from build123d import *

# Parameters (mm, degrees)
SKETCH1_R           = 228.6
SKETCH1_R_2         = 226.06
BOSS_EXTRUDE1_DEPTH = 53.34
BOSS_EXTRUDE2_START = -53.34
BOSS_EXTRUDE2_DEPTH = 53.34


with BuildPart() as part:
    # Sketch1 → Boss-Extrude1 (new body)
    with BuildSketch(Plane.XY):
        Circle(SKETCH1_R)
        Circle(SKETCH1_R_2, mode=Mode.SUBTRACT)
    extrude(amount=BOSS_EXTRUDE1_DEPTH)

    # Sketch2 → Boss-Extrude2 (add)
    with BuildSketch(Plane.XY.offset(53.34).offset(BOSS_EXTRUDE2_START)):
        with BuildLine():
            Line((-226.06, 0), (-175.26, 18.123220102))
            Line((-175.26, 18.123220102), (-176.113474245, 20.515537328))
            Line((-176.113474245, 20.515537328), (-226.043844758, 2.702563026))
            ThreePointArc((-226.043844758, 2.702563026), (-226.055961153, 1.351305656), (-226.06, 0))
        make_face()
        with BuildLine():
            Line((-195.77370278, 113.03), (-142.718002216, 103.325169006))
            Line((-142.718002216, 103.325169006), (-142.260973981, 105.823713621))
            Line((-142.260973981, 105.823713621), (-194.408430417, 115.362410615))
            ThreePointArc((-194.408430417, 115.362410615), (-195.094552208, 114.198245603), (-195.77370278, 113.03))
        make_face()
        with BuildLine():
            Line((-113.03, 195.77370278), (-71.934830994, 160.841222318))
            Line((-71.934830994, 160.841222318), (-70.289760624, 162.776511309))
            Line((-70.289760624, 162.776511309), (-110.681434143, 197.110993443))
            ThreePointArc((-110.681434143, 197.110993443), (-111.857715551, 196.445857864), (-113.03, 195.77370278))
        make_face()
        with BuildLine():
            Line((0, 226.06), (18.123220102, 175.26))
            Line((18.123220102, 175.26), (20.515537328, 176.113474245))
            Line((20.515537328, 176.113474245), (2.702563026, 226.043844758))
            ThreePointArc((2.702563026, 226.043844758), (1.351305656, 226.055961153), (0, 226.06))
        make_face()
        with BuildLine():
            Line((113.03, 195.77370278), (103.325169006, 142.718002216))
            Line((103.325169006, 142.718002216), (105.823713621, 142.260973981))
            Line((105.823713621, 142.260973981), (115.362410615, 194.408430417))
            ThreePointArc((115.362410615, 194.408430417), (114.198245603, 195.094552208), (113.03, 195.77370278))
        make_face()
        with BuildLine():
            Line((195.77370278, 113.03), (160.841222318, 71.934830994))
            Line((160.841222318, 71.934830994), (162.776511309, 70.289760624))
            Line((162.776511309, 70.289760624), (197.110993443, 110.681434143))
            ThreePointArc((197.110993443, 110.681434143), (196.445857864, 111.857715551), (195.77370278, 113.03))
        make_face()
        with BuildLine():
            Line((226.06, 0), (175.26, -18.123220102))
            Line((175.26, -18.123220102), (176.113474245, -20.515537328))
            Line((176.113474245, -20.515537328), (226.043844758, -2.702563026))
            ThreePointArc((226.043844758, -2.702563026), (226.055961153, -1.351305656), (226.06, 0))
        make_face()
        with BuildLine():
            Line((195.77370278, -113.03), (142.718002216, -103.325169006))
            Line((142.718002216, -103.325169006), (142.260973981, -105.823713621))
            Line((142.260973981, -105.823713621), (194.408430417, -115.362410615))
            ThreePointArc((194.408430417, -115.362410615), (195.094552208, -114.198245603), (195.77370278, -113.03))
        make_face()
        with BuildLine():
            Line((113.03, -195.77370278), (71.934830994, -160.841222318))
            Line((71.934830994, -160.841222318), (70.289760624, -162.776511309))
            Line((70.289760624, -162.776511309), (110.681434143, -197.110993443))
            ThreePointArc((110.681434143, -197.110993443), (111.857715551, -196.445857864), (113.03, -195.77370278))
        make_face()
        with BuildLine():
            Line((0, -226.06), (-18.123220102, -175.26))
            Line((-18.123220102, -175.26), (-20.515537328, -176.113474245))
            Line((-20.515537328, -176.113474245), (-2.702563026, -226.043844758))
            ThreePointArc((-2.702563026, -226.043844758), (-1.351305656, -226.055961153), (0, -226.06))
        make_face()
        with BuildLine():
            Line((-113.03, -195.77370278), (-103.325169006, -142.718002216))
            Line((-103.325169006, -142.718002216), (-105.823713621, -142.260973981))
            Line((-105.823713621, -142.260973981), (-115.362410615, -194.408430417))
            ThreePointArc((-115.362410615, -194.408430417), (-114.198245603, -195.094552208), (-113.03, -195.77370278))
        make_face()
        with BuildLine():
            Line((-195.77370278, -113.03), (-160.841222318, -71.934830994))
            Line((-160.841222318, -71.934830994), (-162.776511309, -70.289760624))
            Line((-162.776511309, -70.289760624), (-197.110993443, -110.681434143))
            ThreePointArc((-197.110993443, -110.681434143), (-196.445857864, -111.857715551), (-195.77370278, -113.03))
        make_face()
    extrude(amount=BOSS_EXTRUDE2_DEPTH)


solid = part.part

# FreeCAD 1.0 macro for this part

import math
import FreeCAD as App
import Part
import Sketcher
Q = App.Units.Quantity

doc = App.newDocument("Part")
body = doc.addObject("PartDesign::Body", "Body")

# Sketch on XY plane
sketch1 = body.newObject("Sketcher::SketchObject", "Sketch")
sketch1.AttachmentSupport = (doc.getObject("XY_Plane"), [""])
sketch1.MapMode = "FlatFace"
sketch1.addGeometry(Part.Circle(App.Vector(0, 0, 0), App.Vector(0, 0, 1), 229), False)
sketch1.addGeometry(Part.Circle(App.Vector(0, 0, 0), App.Vector(0, 0, 1), 226), False)
sketch1.addConstraint(Sketcher.Constraint("Coincident", 0, 3, -1, 1))
sketch1.addConstraint(Sketcher.Constraint("Coincident", 1, 3, -1, 1))
sketch1.addConstraint(Sketcher.Constraint("Diameter", 0, Q("18 in")))
sketch1.addConstraint(Sketcher.Constraint("Diameter", 1, Q("17.8 in")))
pad1 = body.newObject("PartDesign::Pad", "Pad")
pad1.Profile = sketch1
pad1.Length = Q("2.1 in")

# Sketch on XY plane
sketch2 = body.newObject("Sketcher::SketchObject", "Sketch001")
sketch2.AttachmentSupport = (doc.getObject("XY_Plane"), [""])
sketch2.MapMode = "FlatFace"
sketch2.addGeometry(Part.LineSegment(App.Vector(-226.06, 0, 0), App.Vector(-175.26, 18.12322, 0)), False)
sketch2.addGeometry(Part.LineSegment(App.Vector(-175.26, 18.12322, 0), App.Vector(-176.113474, 20.515537, 0)), False)
sketch2.addGeometry(Part.LineSegment(App.Vector(-176.113474, 20.515537, 0), App.Vector(-226.043845, 2.702563, 0)), False)
sketch2.addGeometry(Part.ArcOfCircle(Part.Circle(App.Vector(0.00002, 0, 0), App.Vector(0, 0, 1), 226.06002), math.radians(179.315009), math.radians(180)), False)
sketch2.addGeometry(Part.LineSegment(App.Vector(-195.773703, 113.03, 0), App.Vector(-142.718002, 103.325169, 0)), False)
sketch2.addGeometry(Part.LineSegment(App.Vector(-142.718002, 103.325169, 0), App.Vector(-142.260974, 105.823714, 0)), False)
sketch2.addGeometry(Part.LineSegment(App.Vector(-142.260974, 105.823714, 0), App.Vector(-194.40843, 115.362411, 0)), False)
sketch2.addGeometry(Part.ArcOfCircle(Part.Circle(App.Vector(0.000011, -0.000007, 0), App.Vector(0, 0, 1), 226.060013), math.radians(149.315009), math.radians(150)), False)
sketch2.addGeometry(Part.LineSegment(App.Vector(-113.03, 195.773703, 0), App.Vector(-71.934831, 160.841222, 0)), False)
sketch2.addGeometry(Part.LineSegment(App.Vector(-71.934831, 160.841222, 0), App.Vector(-70.289761, 162.776511, 0)), False)
sketch2.addGeometry(Part.LineSegment(App.Vector(-70.289761, 162.776511, 0), App.Vector(-110.681434, 197.110993, 0)), False)
sketch2.addGeometry(Part.ArcOfCircle(Part.Circle(App.Vector(-0.000006, 0.00001, 0), App.Vector(0, 0, 1), 226.059988), math.radians(119.315009), math.radians(120)), False)
sketch2.addGeometry(Part.LineSegment(App.Vector(0, 226.06, 0), App.Vector(18.12322, 175.26, 0)), False)
sketch2.addGeometry(Part.LineSegment(App.Vector(18.12322, 175.26, 0), App.Vector(20.515537, 176.113474, 0)), False)
sketch2.addGeometry(Part.LineSegment(App.Vector(20.515537, 176.113474, 0), App.Vector(2.702563, 226.043845, 0)), False)
sketch2.addGeometry(Part.ArcOfCircle(Part.Circle(App.Vector(0, -0.00002, 0), App.Vector(0, 0, 1), 226.06002), math.radians(89.315009), math.radians(90)), False)
sketch2.addGeometry(Part.LineSegment(App.Vector(113.03, 195.773703, 0), App.Vector(103.325169, 142.718002, 0)), False)
sketch2.addGeometry(Part.LineSegment(App.Vector(103.325169, 142.718002, 0), App.Vector(105.823714, 142.260974, 0)), False)
sketch2.addGeometry(Part.LineSegment(App.Vector(105.823714, 142.260974, 0), App.Vector(115.362411, 194.40843, 0)), False)
sketch2.addGeometry(Part.ArcOfCircle(Part.Circle(App.Vector(-0.000007, -0.000011, 0), App.Vector(0, 0, 1), 226.060013), math.radians(59.315009), math.radians(60)), False)
sketch2.addGeometry(Part.LineSegment(App.Vector(195.773703, 113.03, 0), App.Vector(160.841222, 71.934831, 0)), False)
sketch2.addGeometry(Part.LineSegment(App.Vector(160.841222, 71.934831, 0), App.Vector(162.776511, 70.289761, 0)), False)
sketch2.addGeometry(Part.LineSegment(App.Vector(162.776511, 70.289761, 0), App.Vector(197.110993, 110.681434, 0)), False)
sketch2.addGeometry(Part.ArcOfCircle(Part.Circle(App.Vector(0.00001, 0.000006, 0), App.Vector(0, 0, 1), 226.059988), math.radians(29.315009), math.radians(30)), False)
sketch2.addGeometry(Part.LineSegment(App.Vector(226.06, 0, 0), App.Vector(175.26, -18.12322, 0)), False)
sketch2.addGeometry(Part.LineSegment(App.Vector(175.26, -18.12322, 0), App.Vector(176.113474, -20.515537, 0)), False)
sketch2.addGeometry(Part.LineSegment(App.Vector(176.113474, -20.515537, 0), App.Vector(226.043845, -2.702563, 0)), False)
sketch2.addGeometry(Part.ArcOfCircle(Part.Circle(App.Vector(-0.00002, 0, 0), App.Vector(0, 0, 1), 226.06002), math.radians(-0.684991), math.radians(0)), False)
sketch2.addGeometry(Part.LineSegment(App.Vector(195.773703, -113.03, 0), App.Vector(142.718002, -103.325169, 0)), False)
sketch2.addGeometry(Part.LineSegment(App.Vector(142.718002, -103.325169, 0), App.Vector(142.260974, -105.823714, 0)), False)
sketch2.addGeometry(Part.LineSegment(App.Vector(142.260974, -105.823714, 0), App.Vector(194.40843, -115.362411, 0)), False)
sketch2.addGeometry(Part.ArcOfCircle(Part.Circle(App.Vector(-0.000011, 0.000007, 0), App.Vector(0, 0, 1), 226.060013), math.radians(-30.684991), math.radians(-30)), False)
sketch2.addGeometry(Part.LineSegment(App.Vector(113.03, -195.773703, 0), App.Vector(71.934831, -160.841222, 0)), False)
sketch2.addGeometry(Part.LineSegment(App.Vector(71.934831, -160.841222, 0), App.Vector(70.289761, -162.776511, 0)), False)
sketch2.addGeometry(Part.LineSegment(App.Vector(70.289761, -162.776511, 0), App.Vector(110.681434, -197.110993, 0)), False)
sketch2.addGeometry(Part.ArcOfCircle(Part.Circle(App.Vector(0.000006, -0.00001, 0), App.Vector(0, 0, 1), 226.059988), math.radians(-60.684991), math.radians(-60)), False)
sketch2.addGeometry(Part.LineSegment(App.Vector(0, -226.06, 0), App.Vector(-18.12322, -175.26, 0)), False)
sketch2.addGeometry(Part.LineSegment(App.Vector(-18.12322, -175.26, 0), App.Vector(-20.515537, -176.113474, 0)), False)
sketch2.addGeometry(Part.LineSegment(App.Vector(-20.515537, -176.113474, 0), App.Vector(-2.702563, -226.043845, 0)), False)
sketch2.addGeometry(Part.ArcOfCircle(Part.Circle(App.Vector(0, 0.00002, 0), App.Vector(0, 0, 1), 226.06002), math.radians(-90.684991), math.radians(-90)), False)
sketch2.addGeometry(Part.LineSegment(App.Vector(-113.03, -195.773703, 0), App.Vector(-103.325169, -142.718002, 0)), False)
sketch2.addGeometry(Part.LineSegment(App.Vector(-103.325169, -142.718002, 0), App.Vector(-105.823714, -142.260974, 0)), False)
sketch2.addGeometry(Part.LineSegment(App.Vector(-105.823714, -142.260974, 0), App.Vector(-115.362411, -194.40843, 0)), False)
sketch2.addGeometry(Part.ArcOfCircle(Part.Circle(App.Vector(0.000007, 0.000011, 0), App.Vector(0, 0, 1), 226.060013), math.radians(-120.684991), math.radians(-120)), False)
sketch2.addGeometry(Part.LineSegment(App.Vector(-195.773703, -113.03, 0), App.Vector(-160.841222, -71.934831, 0)), False)
sketch2.addGeometry(Part.LineSegment(App.Vector(-160.841222, -71.934831, 0), App.Vector(-162.776511, -70.289761, 0)), False)
sketch2.addGeometry(Part.LineSegment(App.Vector(-162.776511, -70.289761, 0), App.Vector(-197.110993, -110.681434, 0)), False)
sketch2.addGeometry(Part.ArcOfCircle(Part.Circle(App.Vector(-0.00001, -0.000006, 0), App.Vector(0, 0, 1), 226.059988), math.radians(-150.684991), math.radians(-150)), False)
sketch2.addConstraint(Sketcher.Constraint("Coincident", 0, 2, 1, 1))
sketch2.addConstraint(Sketcher.Constraint("Coincident", 1, 2, 2, 1))
sketch2.addConstraint(Sketcher.Constraint("Coincident", 2, 2, 3, 1))
sketch2.addConstraint(Sketcher.Constraint("Coincident", 3, 2, 0, 1))
sketch2.addConstraint(Sketcher.Constraint("Coincident", 4, 2, 5, 1))
sketch2.addConstraint(Sketcher.Constraint("Coincident", 5, 2, 6, 1))
sketch2.addConstraint(Sketcher.Constraint("Coincident", 6, 2, 7, 1))
sketch2.addConstraint(Sketcher.Constraint("Coincident", 7, 2, 4, 1))
sketch2.addConstraint(Sketcher.Constraint("Coincident", 8, 2, 9, 1))
sketch2.addConstraint(Sketcher.Constraint("Coincident", 9, 2, 10, 1))
sketch2.addConstraint(Sketcher.Constraint("Coincident", 10, 2, 11, 1))
sketch2.addConstraint(Sketcher.Constraint("Coincident", 11, 2, 8, 1))
sketch2.addConstraint(Sketcher.Constraint("Coincident", 12, 2, 13, 1))
sketch2.addConstraint(Sketcher.Constraint("Coincident", 13, 2, 14, 1))
sketch2.addConstraint(Sketcher.Constraint("Coincident", 14, 2, 15, 1))
sketch2.addConstraint(Sketcher.Constraint("Coincident", 15, 2, 12, 1))
sketch2.addConstraint(Sketcher.Constraint("Coincident", 16, 2, 17, 1))
sketch2.addConstraint(Sketcher.Constraint("Coincident", 17, 2, 18, 1))
sketch2.addConstraint(Sketcher.Constraint("Coincident", 18, 2, 19, 1))
sketch2.addConstraint(Sketcher.Constraint("Coincident", 19, 2, 16, 1))
sketch2.addConstraint(Sketcher.Constraint("Coincident", 20, 2, 21, 1))
sketch2.addConstraint(Sketcher.Constraint("Coincident", 21, 2, 22, 1))
sketch2.addConstraint(Sketcher.Constraint("Coincident", 22, 2, 23, 1))
sketch2.addConstraint(Sketcher.Constraint("Coincident", 23, 2, 20, 1))
sketch2.addConstraint(Sketcher.Constraint("Coincident", 24, 2, 25, 1))
sketch2.addConstraint(Sketcher.Constraint("Coincident", 25, 2, 26, 1))
sketch2.addConstraint(Sketcher.Constraint("Coincident", 26, 2, 27, 1))
sketch2.addConstraint(Sketcher.Constraint("Coincident", 27, 2, 24, 1))
sketch2.addConstraint(Sketcher.Constraint("Coincident", 28, 2, 29, 1))
sketch2.addConstraint(Sketcher.Constraint("Coincident", 29, 2, 30, 1))
sketch2.addConstraint(Sketcher.Constraint("Coincident", 30, 2, 31, 1))
sketch2.addConstraint(Sketcher.Constraint("Coincident", 31, 2, 28, 1))
sketch2.addConstraint(Sketcher.Constraint("Coincident", 32, 2, 33, 1))
sketch2.addConstraint(Sketcher.Constraint("Coincident", 33, 2, 34, 1))
sketch2.addConstraint(Sketcher.Constraint("Coincident", 34, 2, 35, 1))
sketch2.addConstraint(Sketcher.Constraint("Coincident", 35, 2, 32, 1))
sketch2.addConstraint(Sketcher.Constraint("Coincident", 36, 2, 37, 1))
sketch2.addConstraint(Sketcher.Constraint("Coincident", 37, 2, 38, 1))
sketch2.addConstraint(Sketcher.Constraint("Coincident", 38, 2, 39, 1))
sketch2.addConstraint(Sketcher.Constraint("Coincident", 39, 2, 36, 1))
sketch2.addConstraint(Sketcher.Constraint("Coincident", 40, 2, 41, 1))
sketch2.addConstraint(Sketcher.Constraint("Coincident", 41, 2, 42, 1))
sketch2.addConstraint(Sketcher.Constraint("Coincident", 42, 2, 43, 1))
sketch2.addConstraint(Sketcher.Constraint("Coincident", 43, 2, 40, 1))
sketch2.addConstraint(Sketcher.Constraint("Coincident", 44, 2, 45, 1))
sketch2.addConstraint(Sketcher.Constraint("Coincident", 45, 2, 46, 1))
sketch2.addConstraint(Sketcher.Constraint("Coincident", 46, 2, 47, 1))
sketch2.addConstraint(Sketcher.Constraint("Coincident", 47, 2, 44, 1))
sketch2.addConstraint(Sketcher.Constraint("Coincident", 31, 3, 11, 3))
sketch2.addConstraint(Sketcher.Constraint("Coincident", 35, 3, 7, 3))
sketch2.addConstraint(Sketcher.Constraint("Coincident", 43, 3, 23, 3))
sketch2.addConstraint(Sketcher.Constraint("Coincident", 47, 3, 19, 3))
sketch2.addConstraint(Sketcher.Constraint("PointOnObject", 3, 3, -1))
sketch2.addConstraint(Sketcher.Constraint("PointOnObject", 15, 3, -2))
sketch2.addConstraint(Sketcher.Constraint("PointOnObject", 27, 3, -1))
sketch2.addConstraint(Sketcher.Constraint("PointOnObject", 39, 3, -2))
sketch2.addConstraint(Sketcher.Constraint("PointOnObject", 3, 2, -1))
sketch2.addConstraint(Sketcher.Constraint("PointOnObject", 15, 2, -2))
sketch2.addConstraint(Sketcher.Constraint("PointOnObject", 27, 2, -1))
sketch2.addConstraint(Sketcher.Constraint("PointOnObject", 39, 2, -2))
sketch2.addConstraint(Sketcher.Constraint("DistanceX", 3, 2, 0, 2, Q("2 in")))
sketch2.addConstraint(Sketcher.Constraint("DistanceY", 12, 2, 15, 2, Q("2 in")))
sketch2.addConstraint(Sketcher.Constraint("DistanceX", 24, 2, 27, 2, Q("2 in")))
sketch2.addConstraint(Sketcher.Constraint("DistanceY", 39, 2, 36, 2, Q("2 in")))
sketch2.addConstraint(Sketcher.Constraint("Distance", 1, Q("0.1 in")))
sketch2.addConstraint(Sketcher.Constraint("Distance", 5, Q("0.1 in")))
sketch2.addConstraint(Sketcher.Constraint("Distance", 9, Q("0.1 in")))
sketch2.addConstraint(Sketcher.Constraint("Distance", 13, Q("0.1 in")))
sketch2.addConstraint(Sketcher.Constraint("Distance", 17, Q("0.1 in")))
sketch2.addConstraint(Sketcher.Constraint("Distance", 21, Q("0.1 in")))
sketch2.addConstraint(Sketcher.Constraint("Distance", 25, Q("0.1 in")))
sketch2.addConstraint(Sketcher.Constraint("Distance", 29, Q("0.1 in")))
sketch2.addConstraint(Sketcher.Constraint("Distance", 33, Q("0.1 in")))
sketch2.addConstraint(Sketcher.Constraint("Distance", 37, Q("0.1 in")))
sketch2.addConstraint(Sketcher.Constraint("Distance", 41, Q("0.1 in")))
sketch2.addConstraint(Sketcher.Constraint("Distance", 45, Q("0.1 in")))
sketch2.addConstraint(Sketcher.Constraint("DistanceX", 0, 2, -1, 1, Q("6.9 in")))
sketch2.addConstraint(Sketcher.Constraint("DistanceY", -1, 1, 12, 2, Q("6.9 in")))
sketch2.addConstraint(Sketcher.Constraint("DistanceX", -1, 1, 24, 2, Q("6.9 in")))
sketch2.addConstraint(Sketcher.Constraint("DistanceY", 36, 2, -1, 1, Q("6.9 in")))
sketch2.addConstraint(Sketcher.Constraint("DistanceY", -1, 1, 7, 2, Q("4.45 in")))
sketch2.addConstraint(Sketcher.Constraint("DistanceX", 11, 2, -1, 1, Q("4.45 in")))
sketch2.addConstraint(Sketcher.Constraint("DistanceX", -1, 1, 19, 2, Q("4.45 in")))
sketch2.addConstraint(Sketcher.Constraint("DistanceY", -1, 1, 23, 2, Q("4.45 in")))
sketch2.addConstraint(Sketcher.Constraint("DistanceY", 31, 2, -1, 1, Q("4.45 in")))
sketch2.addConstraint(Sketcher.Constraint("DistanceX", -1, 1, 35, 2, Q("4.45 in")))
sketch2.addConstraint(Sketcher.Constraint("DistanceX", 43, 2, -1, 1, Q("4.45 in")))
sketch2.addConstraint(Sketcher.Constraint("DistanceY", 47, 2, -1, 1, Q("4.45 in")))
sketch2.addConstraint(Sketcher.Constraint("Radius", 3, 226.06002))
sketch2.addConstraint(Sketcher.Constraint("Radius", 11, 226.059988))
sketch2.addConstraint(Sketcher.Constraint("Radius", 15, 226.06002))
sketch2.addConstraint(Sketcher.Constraint("Radius", 23, 226.059988))
sketch2.addConstraint(Sketcher.Constraint("Radius", 27, 226.06002))
sketch2.addConstraint(Sketcher.Constraint("Radius", 35, 226.059988))
sketch2.addConstraint(Sketcher.Constraint("Radius", 39, 226.06002))
sketch2.addConstraint(Sketcher.Constraint("Radius", 47, 226.059988))
sketch2.addConstraint(Sketcher.Constraint("DistanceY", -1, 1, 2, 2, Q("0.1064001 in")))
sketch2.addConstraint(Sketcher.Constraint("DistanceX", -1, 1, 14, 2, Q("0.1064001 in")))
sketch2.addConstraint(Sketcher.Constraint("DistanceY", 26, 2, -1, 1, Q("0.1064001 in")))
sketch2.addConstraint(Sketcher.Constraint("DistanceX", 38, 2, -1, 1, Q("0.1064001 in")))
sketch2.addConstraint(Sketcher.Constraint("Radius", 7, 226.060013))
sketch2.addConstraint(Sketcher.Constraint("Radius", 19, 226.060013))
sketch2.addConstraint(Sketcher.Constraint("Radius", 31, 226.060013))
sketch2.addConstraint(Sketcher.Constraint("Radius", 43, 226.060013))
sketch2.addConstraint(Sketcher.Constraint("DistanceY", 31, 3, 2, 2, Q("0.1063999 in")))
sketch2.addConstraint(Sketcher.Constraint("DistanceX", 1, 2, 5, 2, 33.8525))
sketch2.addConstraint(Sketcher.Constraint("DistanceX", 7, 2, 4, 2, 53.055701))
sketch2.addConstraint(Sketcher.Constraint("DistanceX", 6, 2, 8, 2, 122.473599))
sketch2.addConstraint(Sketcher.Constraint("DistanceY", 6, 2, 9, 2, 47.414101))
sketch2.addConstraint(Sketcher.Constraint("DistanceY", 17, 2, 13, 2, 33.8525))
sketch2.addConstraint(Sketcher.Constraint("DistanceY", 16, 2, 19, 2, 53.055701))
sketch2.addConstraint(Sketcher.Constraint("DistanceY", 20, 2, 18, 2, 122.473599))
sketch2.addConstraint(Sketcher.Constraint("DistanceX", 18, 2, 21, 2, 47.414101))
sketch2.addConstraint(Sketcher.Constraint("DistanceX", 29, 2, 25, 2, 33.8525))
sketch2.addConstraint(Sketcher.Constraint("DistanceX", 28, 2, 31, 2, 53.055701))
sketch2.addConstraint(Sketcher.Constraint("DistanceX", 32, 2, 30, 2, 122.473599))
sketch2.addConstraint(Sketcher.Constraint("DistanceY", 33, 2, 30, 2, 47.414101))
sketch2.addConstraint(Sketcher.Constraint("DistanceY", 37, 2, 41, 2, 33.8525))
sketch2.addConstraint(Sketcher.Constraint("DistanceY", 43, 2, 40, 2, 53.055701))
sketch2.addConstraint(Sketcher.Constraint("Distance", 0, 53.935991))
sketch2.addConstraint(Sketcher.Constraint("Distance", 4, 53.935991))
sketch2.addConstraint(Sketcher.Constraint("Distance", 8, 53.935991))
sketch2.addConstraint(Sketcher.Constraint("Distance", 12, 53.935991))
sketch2.addConstraint(Sketcher.Constraint("Distance", 16, 53.935991))
sketch2.addConstraint(Sketcher.Constraint("Distance", 20, 53.935991))
sketch2.addConstraint(Sketcher.Constraint("Distance", 24, 53.935991))
sketch2.addConstraint(Sketcher.Constraint("Distance", 28, 53.935991))
sketch2.addConstraint(Sketcher.Constraint("Distance", 32, 53.935991))
sketch2.addConstraint(Sketcher.Constraint("Distance", 36, 53.935991))
sketch2.addConstraint(Sketcher.Constraint("Distance", 40, 53.935991))
sketch2.addConstraint(Sketcher.Constraint("Distance", 44, 53.935991))
sketch2.addConstraint(Sketcher.Constraint("DistanceX", 6, 2, -1, 1, 194.40843))
sketch2.addConstraint(Sketcher.Constraint("DistanceY", -1, 1, 6, 2, 115.362411))
sketch2.addConstraint(Sketcher.Constraint("DistanceX", 9, 2, -1, 1, 70.289761))
sketch2.addConstraint(Sketcher.Constraint("DistanceX", -1, 1, 18, 2, 115.362411))
sketch2.addConstraint(Sketcher.Constraint("DistanceY", -1, 1, 18, 2, 194.40843))
sketch2.addConstraint(Sketcher.Constraint("DistanceY", -1, 1, 21, 2, 70.289761))
sketch2.addConstraint(Sketcher.Constraint("DistanceX", -1, 1, 30, 2, 194.40843))
sketch2.addConstraint(Sketcher.Constraint("DistanceX", -1, 1, 33, 2, 70.289761))
sketch2.addConstraint(Sketcher.Constraint("DistanceX", 42, 2, -1, 1, 115.362411))
sketch2.addConstraint(Sketcher.Constraint("DistanceY", 42, 2, -1, 1, 194.40843))
sketch2.addConstraint(Sketcher.Constraint("DistanceY", 44, 2, -1, 1, 71.934831))
sketch2.addConstraint(Sketcher.Constraint("DistanceX", 45, 2, -1, 1, 162.776511))
sketch2.addConstraint(Sketcher.Constraint("DistanceY", 45, 2, -1, 1, 70.289761))
sketch2.addConstraint(Sketcher.Constraint("DistanceY", 31, 3, 1, 2, 20.515531))
sketch2.addConstraint(Sketcher.Constraint("DistanceY", 8, 2, 10, 2, 36.269771))
sketch2.addConstraint(Sketcher.Constraint("DistanceX", 8, 2, 13, 2, 92.450368))
sketch2.addConstraint(Sketcher.Constraint("DistanceX", 20, 2, 22, 2, 36.269771))
sketch2.addConstraint(Sketcher.Constraint("DistanceX", 20, 2, 25, 2, 15.272252))
sketch2.addConstraint(Sketcher.Constraint("DistanceY", 34, 2, 32, 2, 36.269771))
sketch2.addConstraint(Sketcher.Constraint("DistanceX", 37, 2, 32, 2, 92.450368))
sketch2.addConstraint(Sketcher.Constraint("DistanceX", 46, 2, 44, 2, 36.269771))
pad2 = body.newObject("PartDesign::Pad", "Pad001")
pad2.Profile = sketch2
pad2.Length = Q("2.1 in")

doc.recompute()
